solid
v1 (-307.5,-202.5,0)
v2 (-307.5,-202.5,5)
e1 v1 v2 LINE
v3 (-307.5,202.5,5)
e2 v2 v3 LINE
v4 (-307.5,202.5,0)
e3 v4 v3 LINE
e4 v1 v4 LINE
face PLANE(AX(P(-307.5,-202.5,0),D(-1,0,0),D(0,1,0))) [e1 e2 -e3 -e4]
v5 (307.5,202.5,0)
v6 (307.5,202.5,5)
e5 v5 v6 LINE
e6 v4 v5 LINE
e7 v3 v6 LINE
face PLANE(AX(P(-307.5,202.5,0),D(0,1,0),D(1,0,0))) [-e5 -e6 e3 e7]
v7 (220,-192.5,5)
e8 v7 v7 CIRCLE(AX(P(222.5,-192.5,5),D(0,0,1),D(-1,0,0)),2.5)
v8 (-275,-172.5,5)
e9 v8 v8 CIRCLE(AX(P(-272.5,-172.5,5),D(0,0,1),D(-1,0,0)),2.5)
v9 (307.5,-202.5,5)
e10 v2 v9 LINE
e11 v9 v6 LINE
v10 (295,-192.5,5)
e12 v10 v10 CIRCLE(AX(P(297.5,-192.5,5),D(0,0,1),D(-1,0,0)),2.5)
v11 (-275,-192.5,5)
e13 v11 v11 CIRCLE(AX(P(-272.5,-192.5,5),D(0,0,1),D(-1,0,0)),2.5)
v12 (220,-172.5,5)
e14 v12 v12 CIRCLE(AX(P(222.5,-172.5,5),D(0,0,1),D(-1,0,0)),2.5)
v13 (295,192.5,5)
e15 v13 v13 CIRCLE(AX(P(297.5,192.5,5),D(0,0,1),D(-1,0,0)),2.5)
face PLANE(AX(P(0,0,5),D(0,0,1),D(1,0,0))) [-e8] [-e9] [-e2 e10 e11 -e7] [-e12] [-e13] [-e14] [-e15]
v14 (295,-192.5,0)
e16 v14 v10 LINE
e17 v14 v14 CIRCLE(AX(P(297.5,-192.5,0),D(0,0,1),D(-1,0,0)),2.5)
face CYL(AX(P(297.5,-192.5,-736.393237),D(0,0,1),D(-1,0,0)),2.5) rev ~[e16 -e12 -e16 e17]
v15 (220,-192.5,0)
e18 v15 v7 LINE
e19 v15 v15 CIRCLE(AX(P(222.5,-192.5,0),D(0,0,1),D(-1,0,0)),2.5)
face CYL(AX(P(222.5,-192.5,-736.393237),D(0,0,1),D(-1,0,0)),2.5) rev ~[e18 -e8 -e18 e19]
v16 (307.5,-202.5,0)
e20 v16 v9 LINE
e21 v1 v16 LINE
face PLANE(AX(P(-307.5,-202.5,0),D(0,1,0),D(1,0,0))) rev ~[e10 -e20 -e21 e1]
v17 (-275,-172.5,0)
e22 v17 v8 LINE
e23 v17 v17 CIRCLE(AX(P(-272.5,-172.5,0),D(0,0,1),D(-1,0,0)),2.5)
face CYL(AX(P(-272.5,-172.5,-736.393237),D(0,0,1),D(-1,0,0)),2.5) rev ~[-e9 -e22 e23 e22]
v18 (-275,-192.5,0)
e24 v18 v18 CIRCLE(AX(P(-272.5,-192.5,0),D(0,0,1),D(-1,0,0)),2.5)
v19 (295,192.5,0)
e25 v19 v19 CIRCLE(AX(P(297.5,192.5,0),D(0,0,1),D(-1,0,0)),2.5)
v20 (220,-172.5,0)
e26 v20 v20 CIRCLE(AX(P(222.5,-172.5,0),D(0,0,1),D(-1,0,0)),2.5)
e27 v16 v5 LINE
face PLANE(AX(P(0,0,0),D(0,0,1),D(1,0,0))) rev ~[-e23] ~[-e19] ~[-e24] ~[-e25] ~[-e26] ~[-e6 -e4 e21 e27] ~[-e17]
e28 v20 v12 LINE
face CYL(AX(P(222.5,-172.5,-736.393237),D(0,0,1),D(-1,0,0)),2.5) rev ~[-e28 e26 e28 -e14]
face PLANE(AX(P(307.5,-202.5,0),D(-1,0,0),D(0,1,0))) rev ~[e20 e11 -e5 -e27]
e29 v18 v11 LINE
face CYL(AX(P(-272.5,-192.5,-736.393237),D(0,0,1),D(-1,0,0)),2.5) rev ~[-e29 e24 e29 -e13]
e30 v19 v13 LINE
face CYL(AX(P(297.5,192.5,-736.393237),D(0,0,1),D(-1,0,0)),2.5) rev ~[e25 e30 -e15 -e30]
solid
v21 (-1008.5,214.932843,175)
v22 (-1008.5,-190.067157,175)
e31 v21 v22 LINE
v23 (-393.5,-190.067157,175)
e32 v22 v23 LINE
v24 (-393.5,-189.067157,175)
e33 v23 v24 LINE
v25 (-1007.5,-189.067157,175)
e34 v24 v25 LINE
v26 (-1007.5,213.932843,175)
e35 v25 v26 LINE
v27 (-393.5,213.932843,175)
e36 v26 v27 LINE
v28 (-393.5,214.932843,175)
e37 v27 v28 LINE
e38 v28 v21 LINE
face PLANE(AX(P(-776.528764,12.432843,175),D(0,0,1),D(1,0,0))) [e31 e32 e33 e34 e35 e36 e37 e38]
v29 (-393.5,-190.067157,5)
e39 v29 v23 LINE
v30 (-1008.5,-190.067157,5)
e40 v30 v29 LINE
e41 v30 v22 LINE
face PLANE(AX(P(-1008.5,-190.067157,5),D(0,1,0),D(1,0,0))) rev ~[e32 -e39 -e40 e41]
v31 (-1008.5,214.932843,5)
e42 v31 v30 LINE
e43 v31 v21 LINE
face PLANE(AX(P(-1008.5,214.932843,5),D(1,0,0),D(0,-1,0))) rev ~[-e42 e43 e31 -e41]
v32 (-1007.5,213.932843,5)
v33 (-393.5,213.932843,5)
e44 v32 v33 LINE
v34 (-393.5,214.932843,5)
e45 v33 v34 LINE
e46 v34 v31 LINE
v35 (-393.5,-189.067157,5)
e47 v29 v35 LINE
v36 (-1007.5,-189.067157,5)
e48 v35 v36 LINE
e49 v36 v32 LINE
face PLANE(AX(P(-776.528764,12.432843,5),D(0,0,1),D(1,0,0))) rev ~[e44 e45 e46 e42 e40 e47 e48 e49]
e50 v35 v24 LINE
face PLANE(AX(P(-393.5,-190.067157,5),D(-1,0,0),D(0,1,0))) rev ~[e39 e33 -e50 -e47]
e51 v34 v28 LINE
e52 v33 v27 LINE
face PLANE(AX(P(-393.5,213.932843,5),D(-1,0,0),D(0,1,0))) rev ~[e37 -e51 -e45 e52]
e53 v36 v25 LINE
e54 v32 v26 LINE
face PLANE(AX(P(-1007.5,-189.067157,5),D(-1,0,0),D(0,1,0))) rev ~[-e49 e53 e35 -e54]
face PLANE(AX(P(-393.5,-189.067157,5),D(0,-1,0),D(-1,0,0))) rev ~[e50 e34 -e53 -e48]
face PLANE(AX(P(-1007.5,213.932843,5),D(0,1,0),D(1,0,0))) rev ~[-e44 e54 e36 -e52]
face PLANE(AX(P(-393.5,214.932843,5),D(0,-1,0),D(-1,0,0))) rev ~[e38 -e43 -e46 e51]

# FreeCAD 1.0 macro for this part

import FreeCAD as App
import Part
import Sketcher
from FreeCAD import Vector
Q = App.Units.Quantity

doc = App.newDocument("Part")
params = doc.addObject("Spreadsheet::Sheet", "Params")
for row, (alias, value) in enumerate([
    ("sketch1_width", "615 mm"),
    ("sketch1_height", "405 mm"),
    ("pad1_length", "5 mm"),
    ("sketch2_diameter", "5 mm"),
    ("hole_diameter", "5 mm"),
    ("sketch3_diameter", "5 mm"),
    ("hole2_diameter", "5 mm"),
    ("sketch4_diameter", "5 mm"),
    ("hole3_diameter", "5 mm"),
    ("sketch5_diameter", "5 mm"),
    ("hole4_diameter", "5 mm"),
    ("sketch6_diameter", "5 mm"),
    ("hole5_diameter", "5 mm"),
    ("sketch7_diameter", "5 mm"),
    ("hole6_diameter", "5 mm"),
    ("sketch8_width", "615 mm"),
    ("sketch8_width2", "614 mm"),
    ("sketch8_height", "1 mm"),
    ("sketch8_height2", "403 mm"),
    ("pad2_length", "170 mm"),
], start=1):
    params.set(f"A{row}", alias)
    params.set(f"B{row}", "=" + value)
    params.setAlias(f"B{row}", alias)

body = doc.addObject("PartDesign::Body", "Body")

# Sketch on XY plane
sketch1 = doc.addObject("Sketcher::SketchObject", "Sketch")
body.addObject(sketch1)
sketch1.AttachmentSupport = (doc.XY_Plane, [""])
sketch1.MapMode = "FlatFace"
sketch1.addGeometry(Part.LineSegment(Vector(-307.5, 202.5, 0), Vector(-307.5, -202.5, 0)), False)
sketch1.addGeometry(Part.LineSegment(Vector(-307.5, -202.5, 0), Vector(307.5, -202.5, 0)), False)
sketch1.addGeometry(Part.LineSegment(Vector(307.5, -202.5, 0), Vector(307.5, 202.5, 0)), False)
sketch1.addGeometry(Part.LineSegment(Vector(307.5, 202.5, 0), Vector(-307.5, 202.5, 0)), False)
sketch1.addConstraint(Sketcher.Constraint("Coincident", 0, 2, 1, 1))
sketch1.addConstraint(Sketcher.Constraint("Coincident", 1, 2, 2, 1))
sketch1.addConstraint(Sketcher.Constraint("Coincident", 2, 2, 3, 1))
sketch1.addConstraint(Sketcher.Constraint("Coincident", 3, 2, 0, 1))
sketch1.addConstraint(Sketcher.Constraint("Vertical", 0))
sketch1.addConstraint(Sketcher.Constraint("Horizontal", 1))
sketch1.addConstraint(Sketcher.Constraint("Vertical", 2))
sketch1.addConstraint(Sketcher.Constraint("Horizontal", 3))
sketch1.addConstraint(Sketcher.Constraint("Symmetric", 0, 2, 2, 2, -1, 1))
sketch1.addConstraint(Sketcher.Constraint("DistanceX", 1, 1, 1, 2, Q("615 mm")))
sketch1.addConstraint(Sketcher.Constraint("DistanceY", 0, 2, 0, 1, Q("405 mm")))
sketch1.setExpression("Constraints[9]", "Params.sketch1_width")
sketch1.setExpression("Constraints[10]", "Params.sketch1_height")
pad1 = doc.addObject("PartDesign::Pad", "Pad")
body.addObject(pad1)
pad1.Profile = sketch1
pad1.setExpression("Length", "Params.pad1_length")

# Sketch on XY plane
sketch2 = doc.addObject("Sketcher::SketchObject", "Sketch001")
body.addObject(sketch2)
sketch2.AttachmentSupport = (doc.XY_Plane, [""])
sketch2.MapMode = "FlatFace"
sketch2.addGeometry(Part.Circle(Vector(-272.5, -192.5, 0), Vector(0, 0, 1), 2.5), False)
sketch2.addConstraint(Sketcher.Constraint("Diameter", 0, Q("5 mm")))
sketch2.addConstraint(Sketcher.Constraint("DistanceX", 0, 3, -1, 1, Q("272.5 mm")))
sketch2.addConstraint(Sketcher.Constraint("DistanceY", 0, 3, -1, 1, Q("192.5 mm")))
sketch2.setExpression("Constraints[0]", "Params.sketch2_diameter")
doc.recompute()
hole = doc.addObject("PartDesign::Hole", "Hole")
body.addObject(hole)
hole.Profile = sketch2
hole.ThreadType = "None"
hole.setExpression("Diameter", "Params.hole_diameter")
hole.DepthType = "ThroughAll"
hole.Reversed = True

# Sketch on XY plane
sketch3 = doc.addObject("Sketcher::SketchObject", "Sketch002")
body.addObject(sketch3)
sketch3.AttachmentSupport = (doc.XY_Plane, [""])
sketch3.MapMode = "FlatFace"
sketch3.addGeometry(Part.Circle(Vector(-272.5, -172.5, 0), Vector(0, 0, 1), 2.5), False)
sketch3.addConstraint(Sketcher.Constraint("Diameter", 0, Q("5 mm")))
sketch3.addConstraint(Sketcher.Constraint("DistanceX", 0, 3, -1, 1, Q("272.5 mm")))
sketch3.addConstraint(Sketcher.Constraint("DistanceY", 0, 3, -1, 1, Q("172.5 mm")))
sketch3.setExpression("Constraints[0]", "Params.sketch3_diameter")
doc.recompute()
hole2 = doc.addObject("PartDesign::Hole", "Hole001")
body.addObject(hole2)
hole2.Profile = sketch3
hole2.ThreadType = "None"
hole2.setExpression("Diameter", "Params.hole2_diameter")
hole2.DepthType = "ThroughAll"
hole2.Reversed = True

# Sketch on XY plane
sketch4 = doc.addObject("Sketcher::SketchObject", "Sketch003")
body.addObject(sketch4)
sketch4.AttachmentSupport = (doc.XY_Plane, [""])
sketch4.MapMode = "FlatFace"
sketch4.addGeometry(Part.Circle(Vector(222.5, -192.5, 0), Vector(0, 0, 1), 2.5), False)
sketch4.addConstraint(Sketcher.Constraint("Diameter", 0, Q("5 mm")))
sketch4.addConstraint(Sketcher.Constraint("DistanceX", -1, 1, 0, 3, Q("222.5 mm")))
sketch4.addConstraint(Sketcher.Constraint("DistanceY", 0, 3, -1, 1, Q("192.5 mm")))
sketch4.setExpression("Constraints[0]", "Params.sketch4_diameter")
doc.recompute()
hole3 = doc.addObject("PartDesign::Hole", "Hole002")
body.addObject(hole3)
hole3.Profile = sketch4
hole3.ThreadType = "None"
hole3.setExpression("Diameter", "Params.hole3_diameter")
hole3.DepthType = "ThroughAll"
hole3.Reversed = True

# Sketch on XY plane
sketch5 = doc.addObject("Sketcher::SketchObject", "Sketch004")
body.addObject(sketch5)
sketch5.AttachmentSupport = (doc.XY_Plane, [""])
sketch5.MapMode = "FlatFace"
sketch5.addGeometry(Part.Circle(Vector(222.5, -172.5, 0), Vector(0, 0, 1), 2.5), False)
sketch5.addConstraint(Sketcher.Constraint("Diameter", 0, Q("5 mm")))
sketch5.addConstraint(Sketcher.Constraint("DistanceX", -1, 1, 0, 3, Q("222.5 mm")))
sketch5.addConstraint(Sketcher.Constraint("DistanceY", 0, 3, -1, 1, Q("172.5 mm")))
sketch5.setExpression("Constraints[0]", "Params.sketch5_diameter")
doc.recompute()
hole4 = doc.addObject("PartDesign::Hole", "Hole003")
body.addObject(hole4)
hole4.Profile = sketch5
hole4.ThreadType = "None"
hole4.setExpression("Diameter", "Params.hole4_diameter")
hole4.DepthType = "ThroughAll"
hole4.Reversed = True

# Sketch on XY plane
sketch6 = doc.addObject("Sketcher::SketchObject", "Sketch005")
body.addObject(sketch6)
sketch6.AttachmentSupport = (doc.XY_Plane, [""])
sketch6.MapMode = "FlatFace"
sketch6.addGeometry(Part.Circle(Vector(297.5, 192.5, 0), Vector(0, 0, 1), 2.5), False)
sketch6.addConstraint(Sketcher.Constraint("Diameter", 0, Q("5 mm")))
sketch6.addConstraint(Sketcher.Constraint("DistanceX", -1, 1, 0, 3, Q("297.5 mm")))
sketch6.addConstraint(Sketcher.Constraint("DistanceY", -1, 1, 0, 3, Q("192.5 mm")))
sketch6.setExpression("Constraints[0]", "Params.sketch6_diameter")
doc.recompute()
hole5 = doc.addObject("PartDesign::Hole", "Hole004")
body.addObject(hole5)
hole5.Profile = sketch6
hole5.ThreadType = "None"
hole5.setExpression("Diameter", "Params.hole5_diameter")
hole5.DepthType = "ThroughAll"
hole5.Reversed = True

# Sketch on XY plane
sketch7 = doc.addObject("Sketcher::SketchObject", "Sketch006")
body.addObject(sketch7)
sketch7.AttachmentSupport = (doc.XY_Plane, [""])
sketch7.MapMode = "FlatFace"
sketch7.addGeometry(Part.Circle(Vector(297.5, -192.5, 0), Vector(0, 0, 1), 2.5), False)
sketch7.addConstraint(Sketcher.Constraint("Diameter", 0, Q("5 mm")))
sketch7.addConstraint(Sketcher.Constraint("DistanceX", -1, 1, 0, 3, Q("297.5 mm")))
sketch7.addConstraint(Sketcher.Constraint("DistanceY", 0, 3, -1, 1, Q("192.5 mm")))
sketch7.setExpression("Constraints[0]", "Params.sketch7_diameter")
doc.recompute()
hole6 = doc.addObject("PartDesign::Hole", "Hole005")
body.addObject(hole6)
hole6.Profile = sketch7
hole6.ThreadType = "None"
hole6.setExpression("Diameter", "Params.hole6_diameter")
hole6.DepthType = "ThroughAll"
hole6.Reversed = True
body2 = doc.addObject("PartDesign::Body", "Body001")

# Sketch on XY plane
sketch8 = doc.addObject("Sketcher::SketchObject", "Sketch007")
body2.addObject(sketch8)
sketch8.AttachmentSupport = (doc.getObject("XY_Plane001"), [""])
sketch8.MapMode = "FlatFace"
sketch8.AttachmentOffset = App.Placement(Vector(0, 0, 5), App.Rotation())
sketch8.addGeometry(Part.LineSegment(Vector(-1008.5, -190.067157, 0), Vector(-393.5, -190.067157, 0)), False)
sketch8.addGeometry(Part.LineSegment(Vector(-393.5, -190.067157, 0), Vector(-393.5, -189.067157, 0)), False)
sketch8.addGeometry(Part.LineSegment(Vector(-393.5, -189.067157, 0), Vector(-1007.5, -189.067157, 0)), False)
sketch8.addGeometry(Part.LineSegment(Vector(-1007.5, -189.067157, 0), Vector(-1007.5, 213.932843, 0)), False)
sketch8.addGeometry(Part.LineSegment(Vector(-1007.5, 213.932843, 0), Vector(-393.5, 213.932843, 0)), False)
sketch8.addGeometry(Part.LineSegment(Vector(-393.5, 213.932843, 0), Vector(-393.5, 214.932843, 0)), False)
sketch8.addGeometry(Part.LineSegment(Vector(-393.5, 214.932843, 0), Vector(-1008.5, 214.932843, 0)), False)
sketch8.addGeometry(Part.LineSegment(Vector(-1008.5, 214.932843, 0), Vector(-1008.5, -190.067157, 0)), False)
sketch8.addConstraint(Sketcher.Constraint("Coincident", 0, 2, 1, 1))
sketch8.addConstraint(Sketcher.Constraint("Coincident", 1, 2, 2, 1))
sketch8.addConstraint(Sketcher.Constraint("Coincident", 2, 2, 3, 1))
sketch8.addConstraint(Sketcher.Constraint("Coincident", 3, 2, 4, 1))
sketch8.addConstraint(Sketcher.Constraint("Coincident", 4, 2, 5, 1))
sketch8.addConstraint(Sketcher.Constraint("Coincident", 5, 2, 6, 1))
sketch8.addConstraint(Sketcher.Constraint("Coincident", 6, 2, 7, 1))
sketch8.addConstraint(Sketcher.Constraint("Coincident", 7, 2, 0, 1))
sketch8.addConstraint(Sketcher.Constraint("Horizontal", 0))
sketch8.addConstraint(Sketcher.Constraint("Vertical", 1))
sketch8.addConstraint(Sketcher.Constraint("Horizontal", 2))
sketch8.addConstraint(Sketcher.Constraint("Vertical", 3))
sketch8.addConstraint(Sketcher.Constraint("Horizontal", 4))
sketch8.addConstraint(Sketcher.Constraint("Vertical", 5))
sketch8.addConstraint(Sketcher.Constraint("Horizontal", 6))
sketch8.addConstraint(Sketcher.Constraint("Vertical", 7))
sketch8.addConstraint(Sketcher.Constraint("Vertical", 1, 2, 4, 2))
sketch8.addConstraint(Sketcher.Constraint("Equal", 1, 5))
sketch8.addConstraint(Sketcher.Constraint("DistanceX", 0, 1, 0, 2, Q("615 mm")))
sketch8.addConstraint(Sketcher.Constraint("DistanceX", 2, 2, 2, 1, Q("614 mm")))
sketch8.addConstraint(Sketcher.Constraint("DistanceY", 1, 1, 1, 2, Q("1 mm")))
sketch8.addConstraint(Sketcher.Constraint("DistanceY", 3, 1, 3, 2, Q("403 mm")))
sketch8.addConstraint(Sketcher.Constraint("DistanceX", 0, 2, -1, 1, Q("393.5 mm")))
sketch8.addConstraint(Sketcher.Constraint("DistanceY", 0, 2, -1, 1, Q("190.067157 mm")))
sketch8.setExpression("Constraints[18]", "Params.sketch8_width")
sketch8.setExpression("Constraints[19]", "Params.sketch8_width2")
sketch8.setExpression("Constraints[20]", "Params.sketch8_height")
sketch8.setExpression("Constraints[21]", "Params.sketch8_height2")
pad2 = doc.addObject("PartDesign::Pad", "Pad001")
body2.addObject(pad2)
pad2.Profile = sketch8
pad2.setExpression("Length", "Params.pad2_length")

doc.recompute()
